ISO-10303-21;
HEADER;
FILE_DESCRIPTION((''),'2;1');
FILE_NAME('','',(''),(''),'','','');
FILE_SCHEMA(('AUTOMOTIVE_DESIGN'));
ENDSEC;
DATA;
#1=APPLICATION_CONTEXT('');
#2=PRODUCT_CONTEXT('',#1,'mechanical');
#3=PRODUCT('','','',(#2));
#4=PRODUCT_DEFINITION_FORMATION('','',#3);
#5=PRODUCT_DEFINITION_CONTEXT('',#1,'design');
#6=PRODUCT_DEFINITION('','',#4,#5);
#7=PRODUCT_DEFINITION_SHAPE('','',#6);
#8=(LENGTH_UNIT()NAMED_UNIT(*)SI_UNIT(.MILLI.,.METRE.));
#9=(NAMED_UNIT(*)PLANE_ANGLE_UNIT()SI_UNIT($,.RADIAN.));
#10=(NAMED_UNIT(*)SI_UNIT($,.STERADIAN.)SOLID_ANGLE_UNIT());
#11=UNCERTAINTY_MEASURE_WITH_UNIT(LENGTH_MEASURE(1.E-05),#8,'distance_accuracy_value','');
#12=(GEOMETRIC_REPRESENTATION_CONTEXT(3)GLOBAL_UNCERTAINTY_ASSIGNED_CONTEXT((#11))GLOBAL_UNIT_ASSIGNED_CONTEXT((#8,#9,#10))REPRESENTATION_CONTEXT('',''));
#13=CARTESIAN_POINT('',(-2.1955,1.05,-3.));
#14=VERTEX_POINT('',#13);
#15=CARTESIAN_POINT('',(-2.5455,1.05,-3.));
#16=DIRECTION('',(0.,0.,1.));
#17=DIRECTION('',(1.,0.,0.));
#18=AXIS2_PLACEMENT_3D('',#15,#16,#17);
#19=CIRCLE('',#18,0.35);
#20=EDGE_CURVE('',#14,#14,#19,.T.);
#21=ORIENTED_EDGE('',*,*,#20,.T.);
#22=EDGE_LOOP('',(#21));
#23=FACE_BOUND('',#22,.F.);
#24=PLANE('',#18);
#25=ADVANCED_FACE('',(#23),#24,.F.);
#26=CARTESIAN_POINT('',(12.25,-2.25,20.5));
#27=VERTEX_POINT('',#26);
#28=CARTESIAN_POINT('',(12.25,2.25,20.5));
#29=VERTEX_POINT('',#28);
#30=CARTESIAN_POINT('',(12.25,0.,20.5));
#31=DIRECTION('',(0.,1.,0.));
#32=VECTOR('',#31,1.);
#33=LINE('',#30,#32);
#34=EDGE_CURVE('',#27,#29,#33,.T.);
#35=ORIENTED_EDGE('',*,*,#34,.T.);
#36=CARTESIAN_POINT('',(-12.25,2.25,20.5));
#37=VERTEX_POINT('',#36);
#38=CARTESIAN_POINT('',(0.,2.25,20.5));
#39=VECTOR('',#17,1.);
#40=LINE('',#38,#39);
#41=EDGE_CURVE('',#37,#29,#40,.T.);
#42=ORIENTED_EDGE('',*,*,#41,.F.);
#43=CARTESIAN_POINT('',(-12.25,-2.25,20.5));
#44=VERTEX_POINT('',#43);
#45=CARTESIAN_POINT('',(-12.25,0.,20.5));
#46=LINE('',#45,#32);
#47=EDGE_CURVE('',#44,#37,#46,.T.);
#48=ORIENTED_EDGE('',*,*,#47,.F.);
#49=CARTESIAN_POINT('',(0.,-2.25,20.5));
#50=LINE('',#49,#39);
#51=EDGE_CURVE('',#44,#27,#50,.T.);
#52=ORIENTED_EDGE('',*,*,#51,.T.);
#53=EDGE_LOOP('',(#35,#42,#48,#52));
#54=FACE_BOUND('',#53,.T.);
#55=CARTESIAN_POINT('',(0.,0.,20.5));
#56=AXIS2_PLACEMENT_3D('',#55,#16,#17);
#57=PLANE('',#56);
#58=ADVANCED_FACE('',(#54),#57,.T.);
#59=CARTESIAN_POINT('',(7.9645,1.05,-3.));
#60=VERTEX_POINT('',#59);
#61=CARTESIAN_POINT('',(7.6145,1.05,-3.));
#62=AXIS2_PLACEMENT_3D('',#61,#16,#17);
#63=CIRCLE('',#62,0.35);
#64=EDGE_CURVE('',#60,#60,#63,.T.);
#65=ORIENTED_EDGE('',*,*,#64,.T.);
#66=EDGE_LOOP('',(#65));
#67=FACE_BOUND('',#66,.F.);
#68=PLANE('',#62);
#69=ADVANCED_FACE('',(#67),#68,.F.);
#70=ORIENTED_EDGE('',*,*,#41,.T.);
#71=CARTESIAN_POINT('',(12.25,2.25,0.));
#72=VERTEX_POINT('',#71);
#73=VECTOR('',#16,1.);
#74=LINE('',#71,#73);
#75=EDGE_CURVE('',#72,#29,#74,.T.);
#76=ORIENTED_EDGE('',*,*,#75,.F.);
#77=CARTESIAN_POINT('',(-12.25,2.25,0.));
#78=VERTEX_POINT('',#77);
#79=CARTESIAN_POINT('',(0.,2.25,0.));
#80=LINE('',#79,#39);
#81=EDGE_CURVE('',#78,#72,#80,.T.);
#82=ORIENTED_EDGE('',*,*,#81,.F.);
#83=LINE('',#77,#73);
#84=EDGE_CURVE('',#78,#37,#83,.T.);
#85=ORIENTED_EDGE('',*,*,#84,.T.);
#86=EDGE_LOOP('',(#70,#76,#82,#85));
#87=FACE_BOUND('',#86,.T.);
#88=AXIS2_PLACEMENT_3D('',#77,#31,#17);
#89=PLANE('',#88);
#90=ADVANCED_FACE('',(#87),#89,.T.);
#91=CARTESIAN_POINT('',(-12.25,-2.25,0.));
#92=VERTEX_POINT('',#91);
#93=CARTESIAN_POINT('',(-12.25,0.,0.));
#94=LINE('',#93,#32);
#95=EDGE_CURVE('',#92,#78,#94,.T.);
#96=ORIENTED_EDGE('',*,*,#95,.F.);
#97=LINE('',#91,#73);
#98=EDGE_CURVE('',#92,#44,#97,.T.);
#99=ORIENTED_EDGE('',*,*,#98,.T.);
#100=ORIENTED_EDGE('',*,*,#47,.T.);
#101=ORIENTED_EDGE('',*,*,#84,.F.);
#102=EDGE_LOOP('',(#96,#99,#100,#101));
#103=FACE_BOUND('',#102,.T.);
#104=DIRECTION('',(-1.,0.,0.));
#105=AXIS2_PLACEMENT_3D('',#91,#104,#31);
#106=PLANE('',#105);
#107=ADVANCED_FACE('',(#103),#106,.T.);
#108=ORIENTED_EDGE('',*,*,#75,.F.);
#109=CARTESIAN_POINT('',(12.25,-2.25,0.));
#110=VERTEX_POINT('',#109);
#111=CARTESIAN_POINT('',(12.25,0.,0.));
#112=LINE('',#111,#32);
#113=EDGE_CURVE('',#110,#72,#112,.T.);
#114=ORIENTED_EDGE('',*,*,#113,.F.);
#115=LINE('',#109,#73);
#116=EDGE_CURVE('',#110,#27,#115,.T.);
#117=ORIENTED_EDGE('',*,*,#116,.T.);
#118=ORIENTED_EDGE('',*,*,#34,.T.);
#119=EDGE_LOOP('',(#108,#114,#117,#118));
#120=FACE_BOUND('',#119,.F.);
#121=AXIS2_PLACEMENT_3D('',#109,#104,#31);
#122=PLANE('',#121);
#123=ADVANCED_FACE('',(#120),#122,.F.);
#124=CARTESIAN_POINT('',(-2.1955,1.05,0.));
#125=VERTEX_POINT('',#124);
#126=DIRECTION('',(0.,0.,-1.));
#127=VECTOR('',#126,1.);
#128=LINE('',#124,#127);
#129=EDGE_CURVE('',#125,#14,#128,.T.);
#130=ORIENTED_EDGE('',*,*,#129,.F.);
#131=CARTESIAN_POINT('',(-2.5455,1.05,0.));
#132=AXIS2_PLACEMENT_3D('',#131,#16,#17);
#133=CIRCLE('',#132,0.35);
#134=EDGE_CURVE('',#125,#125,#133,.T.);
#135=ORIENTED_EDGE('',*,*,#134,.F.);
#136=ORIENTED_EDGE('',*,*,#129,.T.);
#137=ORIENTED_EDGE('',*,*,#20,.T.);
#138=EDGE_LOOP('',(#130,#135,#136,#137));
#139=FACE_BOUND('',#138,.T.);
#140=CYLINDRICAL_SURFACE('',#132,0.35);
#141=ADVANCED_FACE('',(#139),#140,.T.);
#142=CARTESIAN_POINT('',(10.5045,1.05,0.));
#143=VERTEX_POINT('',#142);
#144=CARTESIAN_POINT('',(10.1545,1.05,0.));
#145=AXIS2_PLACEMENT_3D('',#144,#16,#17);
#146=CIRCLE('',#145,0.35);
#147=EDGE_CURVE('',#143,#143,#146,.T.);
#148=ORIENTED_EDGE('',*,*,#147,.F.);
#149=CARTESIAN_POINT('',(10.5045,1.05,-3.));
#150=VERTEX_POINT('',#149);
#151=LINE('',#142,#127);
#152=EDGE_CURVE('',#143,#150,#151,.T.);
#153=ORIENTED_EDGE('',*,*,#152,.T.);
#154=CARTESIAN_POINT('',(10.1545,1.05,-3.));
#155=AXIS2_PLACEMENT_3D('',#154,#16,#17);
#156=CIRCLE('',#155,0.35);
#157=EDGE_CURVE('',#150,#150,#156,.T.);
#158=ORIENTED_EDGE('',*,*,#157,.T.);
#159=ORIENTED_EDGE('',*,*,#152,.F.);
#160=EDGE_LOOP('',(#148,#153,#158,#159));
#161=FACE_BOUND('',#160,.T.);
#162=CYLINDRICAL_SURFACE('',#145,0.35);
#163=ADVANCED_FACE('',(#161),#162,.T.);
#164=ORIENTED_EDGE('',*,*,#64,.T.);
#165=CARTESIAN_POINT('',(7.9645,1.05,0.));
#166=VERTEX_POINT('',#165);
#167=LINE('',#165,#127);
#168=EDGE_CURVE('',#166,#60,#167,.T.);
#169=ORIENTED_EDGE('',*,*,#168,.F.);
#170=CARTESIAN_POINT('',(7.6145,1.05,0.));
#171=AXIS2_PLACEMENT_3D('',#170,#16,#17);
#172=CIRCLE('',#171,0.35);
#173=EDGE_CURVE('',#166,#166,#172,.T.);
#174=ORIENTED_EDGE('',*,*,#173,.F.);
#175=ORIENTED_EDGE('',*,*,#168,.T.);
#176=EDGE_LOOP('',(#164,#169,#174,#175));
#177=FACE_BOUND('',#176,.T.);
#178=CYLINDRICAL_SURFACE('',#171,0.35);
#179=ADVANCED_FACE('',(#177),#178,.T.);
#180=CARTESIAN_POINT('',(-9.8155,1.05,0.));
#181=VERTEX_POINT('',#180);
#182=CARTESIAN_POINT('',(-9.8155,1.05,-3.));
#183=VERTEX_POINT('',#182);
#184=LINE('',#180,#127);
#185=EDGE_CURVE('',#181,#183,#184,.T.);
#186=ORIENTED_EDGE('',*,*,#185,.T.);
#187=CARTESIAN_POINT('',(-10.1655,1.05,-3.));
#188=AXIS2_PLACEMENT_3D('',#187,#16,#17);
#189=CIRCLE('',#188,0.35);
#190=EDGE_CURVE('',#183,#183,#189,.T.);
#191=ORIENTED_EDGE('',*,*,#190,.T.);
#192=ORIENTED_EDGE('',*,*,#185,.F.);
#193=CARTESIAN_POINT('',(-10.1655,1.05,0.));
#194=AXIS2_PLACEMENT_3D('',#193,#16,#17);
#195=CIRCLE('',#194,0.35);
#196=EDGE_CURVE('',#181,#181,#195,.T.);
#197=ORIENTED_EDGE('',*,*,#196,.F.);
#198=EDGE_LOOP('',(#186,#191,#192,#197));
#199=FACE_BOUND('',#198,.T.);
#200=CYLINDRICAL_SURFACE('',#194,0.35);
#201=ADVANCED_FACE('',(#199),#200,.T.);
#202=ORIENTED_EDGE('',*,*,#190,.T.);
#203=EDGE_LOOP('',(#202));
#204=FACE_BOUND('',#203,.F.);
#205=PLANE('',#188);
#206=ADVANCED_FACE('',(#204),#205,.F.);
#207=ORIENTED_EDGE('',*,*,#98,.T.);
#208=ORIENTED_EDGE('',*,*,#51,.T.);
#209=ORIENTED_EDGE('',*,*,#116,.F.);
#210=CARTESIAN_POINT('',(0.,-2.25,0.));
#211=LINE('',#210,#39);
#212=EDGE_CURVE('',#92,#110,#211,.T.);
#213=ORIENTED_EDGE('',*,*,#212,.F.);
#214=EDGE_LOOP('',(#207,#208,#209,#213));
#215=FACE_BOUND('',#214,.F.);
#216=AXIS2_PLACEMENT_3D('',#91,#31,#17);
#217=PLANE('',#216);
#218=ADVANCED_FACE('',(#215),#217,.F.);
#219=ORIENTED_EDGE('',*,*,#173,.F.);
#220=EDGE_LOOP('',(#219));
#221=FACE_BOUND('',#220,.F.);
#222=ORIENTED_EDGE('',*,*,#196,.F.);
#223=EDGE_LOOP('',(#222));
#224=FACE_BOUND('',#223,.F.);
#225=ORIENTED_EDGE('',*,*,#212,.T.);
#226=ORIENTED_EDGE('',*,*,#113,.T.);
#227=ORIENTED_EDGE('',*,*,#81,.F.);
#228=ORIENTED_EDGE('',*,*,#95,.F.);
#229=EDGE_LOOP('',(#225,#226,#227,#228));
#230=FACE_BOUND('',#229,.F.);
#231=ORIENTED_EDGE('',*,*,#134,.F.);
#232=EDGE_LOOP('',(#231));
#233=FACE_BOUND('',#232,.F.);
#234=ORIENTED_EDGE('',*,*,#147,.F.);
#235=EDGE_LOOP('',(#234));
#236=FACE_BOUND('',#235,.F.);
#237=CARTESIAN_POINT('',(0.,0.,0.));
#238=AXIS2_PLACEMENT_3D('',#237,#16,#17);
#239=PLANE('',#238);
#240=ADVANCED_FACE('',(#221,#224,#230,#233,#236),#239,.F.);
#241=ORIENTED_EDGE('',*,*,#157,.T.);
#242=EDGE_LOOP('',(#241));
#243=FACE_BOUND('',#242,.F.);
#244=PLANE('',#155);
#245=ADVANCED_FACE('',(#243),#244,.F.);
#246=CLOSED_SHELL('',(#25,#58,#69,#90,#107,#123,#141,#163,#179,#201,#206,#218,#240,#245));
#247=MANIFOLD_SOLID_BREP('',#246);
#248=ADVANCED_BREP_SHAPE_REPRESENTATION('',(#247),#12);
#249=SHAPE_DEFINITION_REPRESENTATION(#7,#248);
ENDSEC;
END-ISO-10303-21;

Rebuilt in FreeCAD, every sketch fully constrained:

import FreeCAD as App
import Part
import Sketcher
Q = App.Units.Quantity

doc = App.newDocument("Part")
body = doc.addObject("PartDesign::Body", "Body")

# Sketch on XY plane
sketch1 = doc.addObject("Sketcher::SketchObject", "Sketch")
body.addObject(sketch1)
sketch1.AttachmentSupport = (doc.XY_Plane, [""])
sketch1.MapMode = "FlatFace"
sketch1.addGeometry(Part.LineSegment(App.Vector(-12.2, 2.2, 0), App.Vector(-12.2, -2.2, 0)), False)
sketch1.addGeometry(Part.LineSegment(App.Vector(-12.2, -2.2, 0), App.Vector(12.2, -2.2, 0)), False)
sketch1.addGeometry(Part.LineSegment(App.Vector(12.2, -2.2, 0), App.Vector(12.2, 2.2, 0)), False)
sketch1.addGeometry(Part.LineSegment(App.Vector(12.2, 2.2, 0), App.Vector(-12.2, 2.2, 0)), False)
sketch1.addConstraint(Sketcher.Constraint("Coincident", 0, 2, 1, 1))
sketch1.addConstraint(Sketcher.Constraint("Coincident", 1, 2, 2, 1))
sketch1.addConstraint(Sketcher.Constraint("Coincident", 2, 2, 3, 1))
sketch1.addConstraint(Sketcher.Constraint("Coincident", 3, 2, 0, 1))
sketch1.addConstraint(Sketcher.Constraint("Vertical", 0))
sketch1.addConstraint(Sketcher.Constraint("Horizontal", 1))
sketch1.addConstraint(Sketcher.Constraint("Vertical", 2))
sketch1.addConstraint(Sketcher.Constraint("Horizontal", 3))
sketch1.addConstraint(Sketcher.Constraint("Symmetric", 0, 2, 2, 2, -1, 1))
sketch1.addConstraint(Sketcher.Constraint("DistanceX", 1, 1, 1, 2, Q("24.5 mm")))
sketch1.addConstraint(Sketcher.Constraint("DistanceY", 0, 2, 0, 1, Q("4.5 mm")))
pad1 = doc.addObject("PartDesign::Pad", "Pad")
body.addObject(pad1)
pad1.Profile = sketch1
pad1.Length = 20.5

# Sketch on XY plane
sketch2 = doc.addObject("Sketcher::SketchObject", "Sketch001")
body.addObject(sketch2)
sketch2.AttachmentSupport = (doc.XY_Plane, [""])
sketch2.MapMode = "FlatFace"
sketch2.addGeometry(Part.Circle(App.Vector(-10.17, 1.05, 0), App.Vector(0, 0, 1), 0.35), False)
sketch2.addGeometry(Part.Circle(App.Vector(-2.55, 1.05, 0), App.Vector(0, 0, 1), 0.35), False)
sketch2.addGeometry(Part.Circle(App.Vector(7.61, 1.05, 0), App.Vector(0, 0, 1), 0.35), False)
sketch2.addGeometry(Part.Circle(App.Vector(10.15, 1.05, 0), App.Vector(0, 0, 1), 0.35), False)
sketch2.addConstraint(Sketcher.Constraint("Equal", 0, 1))
sketch2.addConstraint(Sketcher.Constraint("Equal", 1, 2))
sketch2.addConstraint(Sketcher.Constraint("Equal", 2, 3))
sketch2.addConstraint(Sketcher.Constraint("Horizontal", 0, 3, 1, 3))
sketch2.addConstraint(Sketcher.Constraint("Horizontal", 1, 3, 2, 3))
sketch2.addConstraint(Sketcher.Constraint("Horizontal", 2, 3, 3, 3))
sketch2.addConstraint(Sketcher.Constraint("Diameter", 0, Q("0.7 mm")))
sketch2.addConstraint(Sketcher.Constraint("DistanceX", 1, 3, 3, 3, Q("12.7 mm")))
sketch2.addConstraint(Sketcher.Constraint("DistanceY", -1, 1, 0, 3, Q("1.05 mm")))
sketch2.addConstraint(Sketcher.Constraint("DistanceX", 0, 3, 1, 3, Q("7.62 mm")))
sketch2.addConstraint(Sketcher.Constraint("DistanceX", 1, 3, 2, 3, Q("10.16 mm")))
sketch2.addConstraint(Sketcher.Constraint("DistanceX", 0, 3, -1, 1, Q("10.1655 mm")))
pad2 = doc.addObject("PartDesign::Pad", "Pad001")
body.addObject(pad2)
pad2.Profile = sketch2
pad2.Length = 3
pad2.Reversed = True

doc.recompute()
